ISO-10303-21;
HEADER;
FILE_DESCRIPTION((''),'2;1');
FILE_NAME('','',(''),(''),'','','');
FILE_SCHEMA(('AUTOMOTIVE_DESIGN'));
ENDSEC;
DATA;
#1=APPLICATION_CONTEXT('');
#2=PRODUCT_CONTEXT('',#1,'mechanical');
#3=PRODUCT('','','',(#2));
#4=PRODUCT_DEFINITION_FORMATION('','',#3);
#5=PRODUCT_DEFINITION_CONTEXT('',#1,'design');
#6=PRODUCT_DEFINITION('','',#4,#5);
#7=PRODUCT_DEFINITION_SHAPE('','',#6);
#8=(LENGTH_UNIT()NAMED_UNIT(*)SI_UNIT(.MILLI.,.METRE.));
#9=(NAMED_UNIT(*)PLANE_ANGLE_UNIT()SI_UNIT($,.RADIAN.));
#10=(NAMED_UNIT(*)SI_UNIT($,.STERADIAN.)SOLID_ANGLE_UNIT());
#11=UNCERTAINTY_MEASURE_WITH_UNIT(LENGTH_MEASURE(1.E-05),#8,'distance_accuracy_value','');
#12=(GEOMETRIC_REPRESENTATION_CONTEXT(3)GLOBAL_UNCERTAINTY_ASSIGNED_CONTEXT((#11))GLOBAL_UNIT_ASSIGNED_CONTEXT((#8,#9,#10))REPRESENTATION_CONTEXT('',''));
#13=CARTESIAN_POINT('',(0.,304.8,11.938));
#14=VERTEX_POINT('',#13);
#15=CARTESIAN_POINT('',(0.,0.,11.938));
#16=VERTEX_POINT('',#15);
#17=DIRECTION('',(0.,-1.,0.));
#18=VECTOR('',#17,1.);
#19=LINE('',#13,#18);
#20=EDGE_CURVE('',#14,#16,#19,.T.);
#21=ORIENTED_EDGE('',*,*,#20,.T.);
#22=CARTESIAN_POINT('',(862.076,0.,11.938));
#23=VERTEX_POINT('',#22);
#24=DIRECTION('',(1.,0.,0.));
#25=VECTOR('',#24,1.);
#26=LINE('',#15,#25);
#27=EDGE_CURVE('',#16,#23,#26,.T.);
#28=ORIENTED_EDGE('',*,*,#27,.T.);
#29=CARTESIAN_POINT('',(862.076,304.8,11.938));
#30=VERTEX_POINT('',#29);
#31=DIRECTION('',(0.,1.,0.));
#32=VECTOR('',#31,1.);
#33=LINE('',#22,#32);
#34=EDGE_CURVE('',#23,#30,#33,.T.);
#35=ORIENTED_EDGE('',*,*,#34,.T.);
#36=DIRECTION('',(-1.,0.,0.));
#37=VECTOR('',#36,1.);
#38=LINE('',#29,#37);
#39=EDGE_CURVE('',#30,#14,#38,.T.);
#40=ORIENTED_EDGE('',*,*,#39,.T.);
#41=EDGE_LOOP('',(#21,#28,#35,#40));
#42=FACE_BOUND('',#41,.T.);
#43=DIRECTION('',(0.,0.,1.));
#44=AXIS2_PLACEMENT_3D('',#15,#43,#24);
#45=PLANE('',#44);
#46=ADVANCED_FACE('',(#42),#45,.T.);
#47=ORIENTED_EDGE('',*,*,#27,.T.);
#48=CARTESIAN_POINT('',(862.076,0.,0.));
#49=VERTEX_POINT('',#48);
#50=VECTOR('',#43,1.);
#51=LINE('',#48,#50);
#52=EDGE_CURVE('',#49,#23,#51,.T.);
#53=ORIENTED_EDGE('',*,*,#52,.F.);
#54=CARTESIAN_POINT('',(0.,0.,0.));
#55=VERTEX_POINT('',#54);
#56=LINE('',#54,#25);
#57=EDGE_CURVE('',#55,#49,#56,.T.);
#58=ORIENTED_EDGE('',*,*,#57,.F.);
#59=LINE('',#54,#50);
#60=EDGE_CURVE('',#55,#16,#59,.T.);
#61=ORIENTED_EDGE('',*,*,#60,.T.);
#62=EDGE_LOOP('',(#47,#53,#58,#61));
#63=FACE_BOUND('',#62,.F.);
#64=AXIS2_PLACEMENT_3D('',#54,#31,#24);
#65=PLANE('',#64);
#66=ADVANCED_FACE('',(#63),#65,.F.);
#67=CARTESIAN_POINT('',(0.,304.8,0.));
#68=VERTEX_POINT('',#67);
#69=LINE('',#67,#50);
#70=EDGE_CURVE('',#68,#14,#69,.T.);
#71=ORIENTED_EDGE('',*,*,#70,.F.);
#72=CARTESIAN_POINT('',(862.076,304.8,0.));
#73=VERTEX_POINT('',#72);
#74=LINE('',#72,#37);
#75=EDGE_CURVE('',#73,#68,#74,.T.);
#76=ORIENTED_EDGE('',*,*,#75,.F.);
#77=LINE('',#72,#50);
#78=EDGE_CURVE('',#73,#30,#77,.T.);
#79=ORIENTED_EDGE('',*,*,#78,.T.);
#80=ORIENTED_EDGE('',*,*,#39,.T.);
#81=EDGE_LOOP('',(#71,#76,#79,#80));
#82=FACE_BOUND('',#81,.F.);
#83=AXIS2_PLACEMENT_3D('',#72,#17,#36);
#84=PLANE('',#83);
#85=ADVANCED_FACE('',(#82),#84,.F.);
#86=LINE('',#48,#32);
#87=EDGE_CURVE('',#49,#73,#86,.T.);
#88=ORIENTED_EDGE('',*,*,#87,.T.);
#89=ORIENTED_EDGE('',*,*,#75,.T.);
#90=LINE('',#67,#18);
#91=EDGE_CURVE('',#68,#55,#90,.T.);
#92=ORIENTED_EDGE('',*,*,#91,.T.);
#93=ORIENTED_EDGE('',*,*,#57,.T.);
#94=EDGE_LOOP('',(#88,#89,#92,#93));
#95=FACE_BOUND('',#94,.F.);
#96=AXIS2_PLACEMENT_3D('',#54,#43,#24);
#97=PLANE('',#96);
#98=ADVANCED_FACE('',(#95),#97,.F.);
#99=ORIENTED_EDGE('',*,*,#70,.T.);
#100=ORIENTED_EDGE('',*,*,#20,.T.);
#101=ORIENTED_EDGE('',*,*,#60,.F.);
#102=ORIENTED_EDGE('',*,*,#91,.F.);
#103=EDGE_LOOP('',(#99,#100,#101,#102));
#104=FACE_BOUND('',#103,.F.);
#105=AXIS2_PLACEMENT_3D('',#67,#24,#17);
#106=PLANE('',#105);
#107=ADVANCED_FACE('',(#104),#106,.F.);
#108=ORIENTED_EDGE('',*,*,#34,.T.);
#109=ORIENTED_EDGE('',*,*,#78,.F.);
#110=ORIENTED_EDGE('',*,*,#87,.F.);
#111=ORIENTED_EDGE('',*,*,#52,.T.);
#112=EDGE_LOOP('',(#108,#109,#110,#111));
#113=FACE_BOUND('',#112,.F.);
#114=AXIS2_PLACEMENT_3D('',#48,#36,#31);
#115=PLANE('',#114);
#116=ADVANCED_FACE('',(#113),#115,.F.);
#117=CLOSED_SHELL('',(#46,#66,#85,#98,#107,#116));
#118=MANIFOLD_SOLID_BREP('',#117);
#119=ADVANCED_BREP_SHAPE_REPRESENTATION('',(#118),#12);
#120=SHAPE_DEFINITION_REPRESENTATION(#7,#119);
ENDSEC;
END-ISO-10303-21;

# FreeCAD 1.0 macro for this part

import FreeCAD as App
import Part
import Sketcher

V = App.Vector
Q = App.Units.Quantity

doc = App.newDocument("Part")
body = doc.addObject("PartDesign::Body", "Body")

sketch1 = body.newObject("Sketcher::SketchObject", "Sketch")
sketch1.AttachmentSupport = (doc.getObject("XY_Plane"), [""])
sketch1.MapMode = "FlatFace"
sketch1.addGeometry(Part.LineSegment(V(0, 305, 0), V(0, 0, 0)), False)
sketch1.addGeometry(Part.LineSegment(V(0, 0, 0), V(862, 0, 0)), False)
sketch1.addGeometry(Part.LineSegment(V(862, 0, 0), V(862, 305, 0)), False)
sketch1.addGeometry(Part.LineSegment(V(862, 305, 0), V(0, 305, 0)), False)
sketch1.addConstraint(Sketcher.Constraint("Coincident", 0, 2, 1, 1))
sketch1.addConstraint(Sketcher.Constraint("Coincident", 1, 2, 2, 1))
sketch1.addConstraint(Sketcher.Constraint("Coincident", 2, 2, 3, 1))
sketch1.addConstraint(Sketcher.Constraint("Coincident", 3, 2, 0, 1))
sketch1.addConstraint(Sketcher.Constraint("Vertical", 0))
sketch1.addConstraint(Sketcher.Constraint("Horizontal", 1))
sketch1.addConstraint(Sketcher.Constraint("Vertical", 2))
sketch1.addConstraint(Sketcher.Constraint("Horizontal", 3))
sketch1.addConstraint(Sketcher.Constraint("Coincident", 0, 2, -1, 1))
sketch1.addConstraint(Sketcher.Constraint("DistanceY", 0, 2, 0, 1, Q("12 in")))
sketch1.addConstraint(Sketcher.Constraint("DistanceX", 1, 1, 1, 2, Q("33.94 in")))
pad1 = body.newObject("PartDesign::Pad", "Pad")
pad1.Profile = sketch1
pad1.Length = Q("0.47 in")

doc.recompute()
